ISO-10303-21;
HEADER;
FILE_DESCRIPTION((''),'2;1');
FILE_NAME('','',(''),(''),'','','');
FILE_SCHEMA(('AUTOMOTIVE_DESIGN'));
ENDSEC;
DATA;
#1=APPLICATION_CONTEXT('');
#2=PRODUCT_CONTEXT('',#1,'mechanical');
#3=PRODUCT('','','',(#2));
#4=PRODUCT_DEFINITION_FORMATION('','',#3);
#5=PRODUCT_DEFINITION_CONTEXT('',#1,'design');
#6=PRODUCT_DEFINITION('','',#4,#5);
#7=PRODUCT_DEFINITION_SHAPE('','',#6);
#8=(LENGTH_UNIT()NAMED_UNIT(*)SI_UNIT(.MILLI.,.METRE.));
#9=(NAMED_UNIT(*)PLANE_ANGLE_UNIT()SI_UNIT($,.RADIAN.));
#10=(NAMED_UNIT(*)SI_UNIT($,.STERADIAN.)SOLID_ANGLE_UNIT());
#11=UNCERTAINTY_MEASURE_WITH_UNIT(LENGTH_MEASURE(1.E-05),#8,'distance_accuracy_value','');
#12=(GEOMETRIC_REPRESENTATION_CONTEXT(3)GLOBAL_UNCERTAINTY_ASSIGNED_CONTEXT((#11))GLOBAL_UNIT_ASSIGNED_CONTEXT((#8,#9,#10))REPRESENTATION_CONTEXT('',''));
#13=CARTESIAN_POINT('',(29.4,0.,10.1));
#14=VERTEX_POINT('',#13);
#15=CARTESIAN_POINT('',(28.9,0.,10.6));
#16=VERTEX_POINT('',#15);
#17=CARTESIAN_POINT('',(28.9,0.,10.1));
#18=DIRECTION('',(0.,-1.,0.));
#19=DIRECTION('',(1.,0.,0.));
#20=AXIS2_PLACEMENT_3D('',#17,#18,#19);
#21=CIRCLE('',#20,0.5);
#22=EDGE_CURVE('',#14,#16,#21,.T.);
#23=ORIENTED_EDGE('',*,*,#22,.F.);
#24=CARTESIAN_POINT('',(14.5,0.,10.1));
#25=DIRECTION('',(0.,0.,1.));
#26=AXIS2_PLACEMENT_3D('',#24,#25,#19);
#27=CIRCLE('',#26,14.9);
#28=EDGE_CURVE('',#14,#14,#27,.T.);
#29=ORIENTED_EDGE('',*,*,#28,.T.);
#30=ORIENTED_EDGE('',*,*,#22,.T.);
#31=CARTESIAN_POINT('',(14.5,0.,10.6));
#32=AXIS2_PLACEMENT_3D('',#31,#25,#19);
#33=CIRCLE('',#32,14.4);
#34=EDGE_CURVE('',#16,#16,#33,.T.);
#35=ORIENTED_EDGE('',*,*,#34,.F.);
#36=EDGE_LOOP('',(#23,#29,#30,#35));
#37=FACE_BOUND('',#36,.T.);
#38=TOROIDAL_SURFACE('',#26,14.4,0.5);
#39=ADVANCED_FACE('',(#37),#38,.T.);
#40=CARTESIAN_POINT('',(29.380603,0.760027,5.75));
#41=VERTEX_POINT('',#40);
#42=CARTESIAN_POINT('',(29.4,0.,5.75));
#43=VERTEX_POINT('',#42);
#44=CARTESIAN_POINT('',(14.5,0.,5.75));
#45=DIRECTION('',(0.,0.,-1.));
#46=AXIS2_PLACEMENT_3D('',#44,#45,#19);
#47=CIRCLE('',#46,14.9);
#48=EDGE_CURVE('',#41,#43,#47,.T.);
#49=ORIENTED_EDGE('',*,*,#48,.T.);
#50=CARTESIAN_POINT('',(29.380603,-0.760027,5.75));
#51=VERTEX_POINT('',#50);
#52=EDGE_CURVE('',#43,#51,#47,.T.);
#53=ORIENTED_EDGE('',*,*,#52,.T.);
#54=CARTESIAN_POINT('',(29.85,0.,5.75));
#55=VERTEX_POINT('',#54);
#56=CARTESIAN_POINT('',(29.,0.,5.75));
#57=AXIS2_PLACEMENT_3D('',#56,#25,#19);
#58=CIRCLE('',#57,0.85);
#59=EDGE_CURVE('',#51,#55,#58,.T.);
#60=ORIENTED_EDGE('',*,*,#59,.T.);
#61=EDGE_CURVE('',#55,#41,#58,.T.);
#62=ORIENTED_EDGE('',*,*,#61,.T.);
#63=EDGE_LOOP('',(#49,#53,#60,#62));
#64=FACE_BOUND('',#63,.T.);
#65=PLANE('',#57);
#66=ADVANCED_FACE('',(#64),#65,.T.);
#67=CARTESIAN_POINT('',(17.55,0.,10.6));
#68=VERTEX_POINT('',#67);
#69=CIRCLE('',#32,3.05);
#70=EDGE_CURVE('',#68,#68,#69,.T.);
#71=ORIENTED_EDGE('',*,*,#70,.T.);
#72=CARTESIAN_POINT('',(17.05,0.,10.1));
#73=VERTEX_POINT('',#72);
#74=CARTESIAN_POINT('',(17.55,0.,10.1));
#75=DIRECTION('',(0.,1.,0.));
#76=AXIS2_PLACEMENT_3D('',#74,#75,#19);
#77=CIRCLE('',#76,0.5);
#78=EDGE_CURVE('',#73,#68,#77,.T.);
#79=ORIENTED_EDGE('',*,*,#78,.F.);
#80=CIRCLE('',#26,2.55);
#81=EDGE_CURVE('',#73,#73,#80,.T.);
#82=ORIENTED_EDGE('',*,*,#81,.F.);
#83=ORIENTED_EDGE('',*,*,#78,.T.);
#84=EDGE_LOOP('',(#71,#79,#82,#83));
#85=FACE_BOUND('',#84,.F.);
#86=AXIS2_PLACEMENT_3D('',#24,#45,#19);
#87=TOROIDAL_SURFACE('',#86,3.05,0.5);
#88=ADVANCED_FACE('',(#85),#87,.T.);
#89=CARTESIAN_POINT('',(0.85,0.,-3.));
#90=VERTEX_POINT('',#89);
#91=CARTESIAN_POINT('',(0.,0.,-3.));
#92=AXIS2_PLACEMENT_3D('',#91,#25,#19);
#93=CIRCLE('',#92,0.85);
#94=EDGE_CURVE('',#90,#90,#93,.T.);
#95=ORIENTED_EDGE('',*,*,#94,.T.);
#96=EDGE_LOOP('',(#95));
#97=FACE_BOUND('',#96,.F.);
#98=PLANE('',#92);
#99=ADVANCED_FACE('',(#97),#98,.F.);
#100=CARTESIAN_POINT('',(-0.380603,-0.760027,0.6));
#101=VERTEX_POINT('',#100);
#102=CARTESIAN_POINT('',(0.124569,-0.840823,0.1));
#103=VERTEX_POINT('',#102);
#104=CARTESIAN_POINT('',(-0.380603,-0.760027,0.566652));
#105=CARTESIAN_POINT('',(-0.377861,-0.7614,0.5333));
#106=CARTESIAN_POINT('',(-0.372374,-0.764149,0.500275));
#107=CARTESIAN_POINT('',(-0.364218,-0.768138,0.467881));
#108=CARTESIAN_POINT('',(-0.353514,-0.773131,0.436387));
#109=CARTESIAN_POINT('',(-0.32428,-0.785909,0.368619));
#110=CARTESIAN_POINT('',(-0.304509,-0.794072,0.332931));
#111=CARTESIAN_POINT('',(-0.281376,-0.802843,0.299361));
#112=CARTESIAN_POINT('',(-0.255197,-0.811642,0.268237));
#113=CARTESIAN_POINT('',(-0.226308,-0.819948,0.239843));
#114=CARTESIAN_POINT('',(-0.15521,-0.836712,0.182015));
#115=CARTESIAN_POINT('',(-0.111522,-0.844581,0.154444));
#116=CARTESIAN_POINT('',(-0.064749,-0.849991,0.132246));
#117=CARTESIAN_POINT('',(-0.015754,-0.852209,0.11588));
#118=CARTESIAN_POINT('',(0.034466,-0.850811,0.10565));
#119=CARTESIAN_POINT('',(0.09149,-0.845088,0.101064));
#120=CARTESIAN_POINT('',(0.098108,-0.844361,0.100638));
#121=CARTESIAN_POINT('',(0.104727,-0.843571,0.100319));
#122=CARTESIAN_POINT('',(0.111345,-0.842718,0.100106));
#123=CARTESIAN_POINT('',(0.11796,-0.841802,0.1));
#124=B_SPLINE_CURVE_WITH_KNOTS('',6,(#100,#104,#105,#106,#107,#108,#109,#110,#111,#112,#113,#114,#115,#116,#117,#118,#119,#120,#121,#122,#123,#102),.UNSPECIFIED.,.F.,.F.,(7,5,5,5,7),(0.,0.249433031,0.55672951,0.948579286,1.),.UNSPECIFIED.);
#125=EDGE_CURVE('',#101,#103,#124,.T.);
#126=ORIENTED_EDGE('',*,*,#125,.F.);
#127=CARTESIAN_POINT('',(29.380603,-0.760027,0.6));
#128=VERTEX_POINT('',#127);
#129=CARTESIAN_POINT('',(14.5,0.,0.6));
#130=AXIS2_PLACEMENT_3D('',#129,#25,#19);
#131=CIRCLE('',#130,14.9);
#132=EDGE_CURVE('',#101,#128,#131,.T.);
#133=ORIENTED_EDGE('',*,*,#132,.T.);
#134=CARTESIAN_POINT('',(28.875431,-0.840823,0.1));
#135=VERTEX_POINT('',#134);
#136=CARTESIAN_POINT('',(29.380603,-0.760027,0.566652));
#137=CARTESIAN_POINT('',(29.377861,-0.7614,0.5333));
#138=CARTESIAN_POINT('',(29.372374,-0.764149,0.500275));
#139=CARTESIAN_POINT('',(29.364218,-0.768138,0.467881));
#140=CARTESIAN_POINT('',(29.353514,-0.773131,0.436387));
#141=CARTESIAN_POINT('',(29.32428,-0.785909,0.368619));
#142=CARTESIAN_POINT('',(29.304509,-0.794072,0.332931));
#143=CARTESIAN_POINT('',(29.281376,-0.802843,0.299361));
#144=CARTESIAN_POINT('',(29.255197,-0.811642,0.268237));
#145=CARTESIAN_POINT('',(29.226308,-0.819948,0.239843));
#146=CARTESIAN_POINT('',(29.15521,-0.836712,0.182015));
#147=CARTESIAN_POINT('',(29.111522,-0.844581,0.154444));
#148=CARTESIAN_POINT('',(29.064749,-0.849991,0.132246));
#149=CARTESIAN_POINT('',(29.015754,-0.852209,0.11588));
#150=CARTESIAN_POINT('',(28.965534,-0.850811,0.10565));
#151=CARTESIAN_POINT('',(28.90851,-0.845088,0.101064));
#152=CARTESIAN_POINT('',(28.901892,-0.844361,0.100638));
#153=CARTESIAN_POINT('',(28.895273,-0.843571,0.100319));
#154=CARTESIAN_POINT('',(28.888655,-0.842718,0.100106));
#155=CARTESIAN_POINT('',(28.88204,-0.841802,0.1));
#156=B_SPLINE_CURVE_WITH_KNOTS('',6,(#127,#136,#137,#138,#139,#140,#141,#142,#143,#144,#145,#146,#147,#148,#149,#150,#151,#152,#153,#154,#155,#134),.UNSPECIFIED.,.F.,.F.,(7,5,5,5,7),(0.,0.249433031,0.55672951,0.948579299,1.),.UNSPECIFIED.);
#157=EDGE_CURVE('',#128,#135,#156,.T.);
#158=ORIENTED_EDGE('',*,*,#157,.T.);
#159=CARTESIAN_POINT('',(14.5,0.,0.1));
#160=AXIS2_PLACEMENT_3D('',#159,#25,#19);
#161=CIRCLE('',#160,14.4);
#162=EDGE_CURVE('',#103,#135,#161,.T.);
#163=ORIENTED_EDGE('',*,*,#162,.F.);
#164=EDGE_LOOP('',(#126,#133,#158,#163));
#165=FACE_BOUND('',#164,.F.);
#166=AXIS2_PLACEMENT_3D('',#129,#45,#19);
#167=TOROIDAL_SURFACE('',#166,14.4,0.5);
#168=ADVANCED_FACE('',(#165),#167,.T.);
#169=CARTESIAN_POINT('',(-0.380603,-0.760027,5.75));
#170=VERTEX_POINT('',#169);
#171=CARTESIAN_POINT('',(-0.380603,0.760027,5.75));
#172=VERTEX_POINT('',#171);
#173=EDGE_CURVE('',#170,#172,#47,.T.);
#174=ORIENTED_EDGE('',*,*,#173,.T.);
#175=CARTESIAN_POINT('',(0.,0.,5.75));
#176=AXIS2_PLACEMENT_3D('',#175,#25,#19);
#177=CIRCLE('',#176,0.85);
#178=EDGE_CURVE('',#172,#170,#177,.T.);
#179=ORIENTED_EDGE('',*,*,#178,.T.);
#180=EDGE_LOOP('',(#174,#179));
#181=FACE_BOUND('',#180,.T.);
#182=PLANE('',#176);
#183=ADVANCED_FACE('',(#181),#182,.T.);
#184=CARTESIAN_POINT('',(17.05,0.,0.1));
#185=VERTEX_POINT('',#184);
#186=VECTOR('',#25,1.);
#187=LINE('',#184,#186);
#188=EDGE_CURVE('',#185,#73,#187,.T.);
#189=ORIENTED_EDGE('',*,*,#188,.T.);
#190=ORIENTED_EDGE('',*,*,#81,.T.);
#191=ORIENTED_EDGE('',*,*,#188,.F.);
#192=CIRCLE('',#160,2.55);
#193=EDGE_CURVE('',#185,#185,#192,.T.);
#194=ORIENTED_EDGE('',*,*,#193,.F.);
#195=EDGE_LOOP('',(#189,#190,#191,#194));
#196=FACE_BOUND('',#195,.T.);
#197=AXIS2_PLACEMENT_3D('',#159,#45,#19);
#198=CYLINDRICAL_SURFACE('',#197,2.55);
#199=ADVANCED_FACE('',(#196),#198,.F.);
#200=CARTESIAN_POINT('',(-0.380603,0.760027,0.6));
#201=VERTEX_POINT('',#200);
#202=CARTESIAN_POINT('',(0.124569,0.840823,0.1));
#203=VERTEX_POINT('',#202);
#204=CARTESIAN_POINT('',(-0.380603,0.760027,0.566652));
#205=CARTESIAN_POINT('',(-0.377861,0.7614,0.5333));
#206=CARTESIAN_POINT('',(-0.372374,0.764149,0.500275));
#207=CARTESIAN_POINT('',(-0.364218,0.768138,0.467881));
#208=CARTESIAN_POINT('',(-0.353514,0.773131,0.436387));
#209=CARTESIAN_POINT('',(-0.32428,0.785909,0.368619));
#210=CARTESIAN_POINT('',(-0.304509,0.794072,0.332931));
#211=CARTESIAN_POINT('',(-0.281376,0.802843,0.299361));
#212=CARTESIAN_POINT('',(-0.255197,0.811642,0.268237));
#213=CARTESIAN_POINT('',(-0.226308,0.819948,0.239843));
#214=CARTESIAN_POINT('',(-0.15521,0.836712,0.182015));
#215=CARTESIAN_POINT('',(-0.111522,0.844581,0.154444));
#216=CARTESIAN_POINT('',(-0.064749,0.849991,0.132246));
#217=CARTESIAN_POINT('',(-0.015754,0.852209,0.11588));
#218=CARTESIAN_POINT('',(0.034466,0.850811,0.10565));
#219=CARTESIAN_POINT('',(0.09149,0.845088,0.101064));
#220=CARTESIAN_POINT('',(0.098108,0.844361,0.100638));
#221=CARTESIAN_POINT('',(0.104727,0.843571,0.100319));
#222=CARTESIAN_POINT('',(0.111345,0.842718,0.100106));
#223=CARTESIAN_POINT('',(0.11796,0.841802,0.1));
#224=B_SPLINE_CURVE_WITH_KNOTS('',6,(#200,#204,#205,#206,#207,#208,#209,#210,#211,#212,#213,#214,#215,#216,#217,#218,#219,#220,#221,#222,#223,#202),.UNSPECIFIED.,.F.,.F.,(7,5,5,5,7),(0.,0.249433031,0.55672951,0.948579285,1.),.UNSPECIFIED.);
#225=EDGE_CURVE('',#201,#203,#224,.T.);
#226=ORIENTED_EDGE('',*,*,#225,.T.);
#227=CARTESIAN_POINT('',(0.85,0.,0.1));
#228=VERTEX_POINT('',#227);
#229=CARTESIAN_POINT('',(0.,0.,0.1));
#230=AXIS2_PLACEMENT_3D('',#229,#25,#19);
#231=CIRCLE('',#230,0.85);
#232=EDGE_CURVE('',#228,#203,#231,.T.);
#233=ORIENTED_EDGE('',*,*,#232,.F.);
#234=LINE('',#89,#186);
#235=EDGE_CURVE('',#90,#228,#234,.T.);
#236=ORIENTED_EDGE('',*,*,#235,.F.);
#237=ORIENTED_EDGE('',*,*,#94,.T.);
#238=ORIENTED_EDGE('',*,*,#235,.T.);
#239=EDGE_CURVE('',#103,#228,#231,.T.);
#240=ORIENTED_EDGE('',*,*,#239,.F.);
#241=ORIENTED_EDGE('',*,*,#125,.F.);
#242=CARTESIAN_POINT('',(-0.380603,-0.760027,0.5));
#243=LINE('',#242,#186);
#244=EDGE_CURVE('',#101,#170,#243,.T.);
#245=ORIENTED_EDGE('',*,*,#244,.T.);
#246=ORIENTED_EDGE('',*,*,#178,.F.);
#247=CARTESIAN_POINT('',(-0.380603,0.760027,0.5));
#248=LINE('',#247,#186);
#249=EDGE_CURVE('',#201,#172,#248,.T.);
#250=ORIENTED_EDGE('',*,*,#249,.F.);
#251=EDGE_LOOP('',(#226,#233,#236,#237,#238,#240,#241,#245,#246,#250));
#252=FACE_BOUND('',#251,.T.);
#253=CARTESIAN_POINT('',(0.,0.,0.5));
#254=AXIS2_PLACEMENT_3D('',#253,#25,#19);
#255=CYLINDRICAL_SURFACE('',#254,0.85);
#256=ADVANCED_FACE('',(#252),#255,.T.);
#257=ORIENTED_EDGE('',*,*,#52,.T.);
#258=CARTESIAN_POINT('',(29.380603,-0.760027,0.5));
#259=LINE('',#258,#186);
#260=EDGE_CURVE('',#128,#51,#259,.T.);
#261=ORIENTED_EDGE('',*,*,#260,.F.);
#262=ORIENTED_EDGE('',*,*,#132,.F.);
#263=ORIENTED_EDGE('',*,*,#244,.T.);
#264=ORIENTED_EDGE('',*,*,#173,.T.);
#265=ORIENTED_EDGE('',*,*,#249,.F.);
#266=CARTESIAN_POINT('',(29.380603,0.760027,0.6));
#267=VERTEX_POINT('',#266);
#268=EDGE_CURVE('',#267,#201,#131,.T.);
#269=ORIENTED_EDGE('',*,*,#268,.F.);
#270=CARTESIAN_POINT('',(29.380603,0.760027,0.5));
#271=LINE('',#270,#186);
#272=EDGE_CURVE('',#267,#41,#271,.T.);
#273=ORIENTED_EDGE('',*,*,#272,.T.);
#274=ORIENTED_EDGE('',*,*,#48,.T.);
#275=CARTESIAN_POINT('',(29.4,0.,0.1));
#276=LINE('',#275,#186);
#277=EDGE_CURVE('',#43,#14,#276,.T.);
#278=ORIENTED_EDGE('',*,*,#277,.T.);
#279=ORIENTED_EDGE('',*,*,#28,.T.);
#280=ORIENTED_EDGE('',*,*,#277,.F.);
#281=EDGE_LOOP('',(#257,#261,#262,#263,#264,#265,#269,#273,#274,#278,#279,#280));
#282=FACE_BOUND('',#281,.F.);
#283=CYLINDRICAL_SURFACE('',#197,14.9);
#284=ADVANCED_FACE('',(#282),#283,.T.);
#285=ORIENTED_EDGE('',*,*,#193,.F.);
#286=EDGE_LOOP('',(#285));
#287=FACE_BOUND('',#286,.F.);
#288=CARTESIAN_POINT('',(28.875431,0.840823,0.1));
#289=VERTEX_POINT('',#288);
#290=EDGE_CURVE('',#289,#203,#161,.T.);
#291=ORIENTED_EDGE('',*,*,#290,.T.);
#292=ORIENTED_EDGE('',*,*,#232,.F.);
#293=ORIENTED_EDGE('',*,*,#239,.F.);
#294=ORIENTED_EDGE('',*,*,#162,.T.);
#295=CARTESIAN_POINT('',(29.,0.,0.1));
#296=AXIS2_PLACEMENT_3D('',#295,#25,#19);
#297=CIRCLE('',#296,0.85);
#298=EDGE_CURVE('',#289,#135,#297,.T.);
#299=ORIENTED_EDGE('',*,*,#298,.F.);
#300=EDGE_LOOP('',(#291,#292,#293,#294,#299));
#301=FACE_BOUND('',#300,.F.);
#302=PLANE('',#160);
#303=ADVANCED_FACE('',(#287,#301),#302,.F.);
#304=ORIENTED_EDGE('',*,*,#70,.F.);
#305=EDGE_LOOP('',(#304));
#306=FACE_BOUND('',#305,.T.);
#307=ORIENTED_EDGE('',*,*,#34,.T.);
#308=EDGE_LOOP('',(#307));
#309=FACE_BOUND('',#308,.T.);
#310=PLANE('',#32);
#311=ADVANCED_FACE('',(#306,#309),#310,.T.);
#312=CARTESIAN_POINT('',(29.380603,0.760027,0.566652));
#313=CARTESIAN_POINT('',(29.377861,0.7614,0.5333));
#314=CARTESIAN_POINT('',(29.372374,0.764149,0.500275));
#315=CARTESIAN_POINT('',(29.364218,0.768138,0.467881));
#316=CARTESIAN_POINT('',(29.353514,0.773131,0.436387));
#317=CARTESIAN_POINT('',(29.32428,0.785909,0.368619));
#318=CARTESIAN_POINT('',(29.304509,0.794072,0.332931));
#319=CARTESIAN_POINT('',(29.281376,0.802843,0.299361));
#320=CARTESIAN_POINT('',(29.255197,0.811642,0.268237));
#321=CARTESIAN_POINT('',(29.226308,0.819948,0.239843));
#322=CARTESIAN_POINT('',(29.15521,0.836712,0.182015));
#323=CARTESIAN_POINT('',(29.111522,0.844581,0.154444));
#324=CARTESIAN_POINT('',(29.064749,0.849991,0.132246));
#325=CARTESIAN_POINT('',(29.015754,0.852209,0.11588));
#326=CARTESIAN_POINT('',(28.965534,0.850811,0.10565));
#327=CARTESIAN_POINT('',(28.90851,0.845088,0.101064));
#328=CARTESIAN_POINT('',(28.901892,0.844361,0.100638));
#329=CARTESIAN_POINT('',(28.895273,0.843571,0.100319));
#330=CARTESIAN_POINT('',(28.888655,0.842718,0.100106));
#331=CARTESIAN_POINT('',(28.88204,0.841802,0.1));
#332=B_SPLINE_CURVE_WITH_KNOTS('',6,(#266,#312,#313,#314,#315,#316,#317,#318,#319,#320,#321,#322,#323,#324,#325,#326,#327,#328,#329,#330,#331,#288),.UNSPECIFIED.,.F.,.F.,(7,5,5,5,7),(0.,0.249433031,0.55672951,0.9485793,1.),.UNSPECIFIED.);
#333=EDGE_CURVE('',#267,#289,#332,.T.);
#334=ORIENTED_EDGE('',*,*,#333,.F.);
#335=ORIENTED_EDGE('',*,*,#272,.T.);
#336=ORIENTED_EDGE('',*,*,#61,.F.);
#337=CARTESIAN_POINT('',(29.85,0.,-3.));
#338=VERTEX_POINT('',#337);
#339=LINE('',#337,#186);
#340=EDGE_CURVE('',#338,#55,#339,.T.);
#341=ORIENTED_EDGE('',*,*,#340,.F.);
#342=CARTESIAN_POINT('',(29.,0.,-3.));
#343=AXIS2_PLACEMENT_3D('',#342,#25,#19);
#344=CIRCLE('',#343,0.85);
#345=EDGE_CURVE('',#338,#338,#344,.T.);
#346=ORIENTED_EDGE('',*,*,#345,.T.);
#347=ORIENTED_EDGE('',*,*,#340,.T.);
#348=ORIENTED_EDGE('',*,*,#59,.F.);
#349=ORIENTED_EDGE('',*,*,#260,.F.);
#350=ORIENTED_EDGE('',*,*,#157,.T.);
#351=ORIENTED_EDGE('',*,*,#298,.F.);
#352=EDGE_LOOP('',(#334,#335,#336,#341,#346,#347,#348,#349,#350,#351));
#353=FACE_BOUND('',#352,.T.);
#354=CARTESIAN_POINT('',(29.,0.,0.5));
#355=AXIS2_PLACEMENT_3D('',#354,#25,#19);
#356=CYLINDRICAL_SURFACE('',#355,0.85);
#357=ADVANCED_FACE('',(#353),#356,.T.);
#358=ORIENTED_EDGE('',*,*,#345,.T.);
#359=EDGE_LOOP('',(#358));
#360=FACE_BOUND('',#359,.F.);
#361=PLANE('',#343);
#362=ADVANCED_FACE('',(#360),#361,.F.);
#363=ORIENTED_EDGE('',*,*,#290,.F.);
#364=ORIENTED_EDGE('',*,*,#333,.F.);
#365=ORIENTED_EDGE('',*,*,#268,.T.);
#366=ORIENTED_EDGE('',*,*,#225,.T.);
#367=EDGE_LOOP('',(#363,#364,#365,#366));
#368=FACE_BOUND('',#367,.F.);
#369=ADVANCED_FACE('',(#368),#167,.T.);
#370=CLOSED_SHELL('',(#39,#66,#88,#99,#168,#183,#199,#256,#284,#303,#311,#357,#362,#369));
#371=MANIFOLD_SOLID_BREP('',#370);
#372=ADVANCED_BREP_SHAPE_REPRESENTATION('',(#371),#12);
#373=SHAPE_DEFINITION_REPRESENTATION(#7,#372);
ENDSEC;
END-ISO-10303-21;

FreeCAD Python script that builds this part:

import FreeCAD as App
import Part
import Sketcher
from FreeCAD import Vector
Q = App.Units.Quantity


def edges_at(feature, points):
    """Names of the edges that pass closest to the given points."""
    edges = feature.Shape.Edges
    near = lambda p: min(range(len(edges)), key=lambda i: edges[i].distToShape(Part.Vertex(*p))[0])
    return sorted({f"Edge{near(p) + 1}" for p in points})

doc = App.newDocument("Part")
body = doc.addObject("PartDesign::Body", "Body")

sketch1 = body.newObject("Sketcher::SketchObject", "Sketch")
sketch1.AttachmentSupport = (doc.getObject("XY_Plane"), [""])
sketch1.MapMode = "FlatFace"
sketch1.AttachmentOffset = App.Placement(Vector(0, 0, 0.1), App.Rotation())
sketch1.addGeometry([
    Part.Circle(Vector(14.5, 0, 0), Vector(0, 0, 1), 14.9),
    Part.Circle(Vector(14.5, 0, 0), Vector(0, 0, 1), 2.55),
], False)
sketch1.addConstraint([
    Sketcher.Constraint("Coincident", 1, 3, 0, 3),
    Sketcher.Constraint("PointOnObject", 0, 3, -1),
    Sketcher.Constraint("Diameter", 0, Q("29.8 mm")),
    Sketcher.Constraint("Diameter", 1, Q("5.1 mm")),
    Sketcher.Constraint("DistanceX", -1, 1, 0, 3, Q("14.5 mm")),
])
pad1 = body.newObject("PartDesign::Pad", "Pad")
pad1.Profile = sketch1
pad1.Length = 10.5
doc.recompute()

fillet = body.newObject("PartDesign::Fillet", "Fillet")
fillet.Base = (pad1, edges_at(pad1, [(11.95, 0, 10.6), (-0.4, 0, 10.6), (-0.4, 0, 0.1)]))
fillet.Radius = 0.5
body2 = doc.addObject("PartDesign::Body", "Body001")
body2.AllowCompound = True

sketch2 = body2.newObject("Sketcher::SketchObject", "Sketch001")
sketch2.AttachmentSupport = (doc.getObject("XY_Plane001"), [""])
sketch2.MapMode = "FlatFace"
sketch2.AttachmentOffset = App.Placement(Vector(0, 0, 0.5), App.Rotation())
sketch2.addGeometry([
    Part.Circle(Vector(0, 0, 0), Vector(0, 0, 1), 0.85),
    Part.Circle(Vector(29, 0, 0), Vector(0, 0, 1), 0.85),
], False)
sketch2.addConstraint([
    Sketcher.Constraint("Coincident", 0, 3, -1, 1),
    Sketcher.Constraint("Equal", 0, 1),
    Sketcher.Constraint("PointOnObject", 1, 3, -1),
    Sketcher.Constraint("Diameter", 0, Q("1.7 mm")),
    Sketcher.Constraint("DistanceX", -1, 1, 1, 3, Q("29 mm")),
])
pad2 = body2.newObject("PartDesign::Pad", "Pad001")
pad2.Profile = sketch2
pad2.Type = "TwoLengths"
pad2.Length = 5.25
pad2.Length2 = 3.5
doc.recompute()

boolean = body2.newObject("PartDesign::Boolean", "Boolean")
boolean.Type = "Fuse"
boolean.addObjects([body])

doc.recompute()
